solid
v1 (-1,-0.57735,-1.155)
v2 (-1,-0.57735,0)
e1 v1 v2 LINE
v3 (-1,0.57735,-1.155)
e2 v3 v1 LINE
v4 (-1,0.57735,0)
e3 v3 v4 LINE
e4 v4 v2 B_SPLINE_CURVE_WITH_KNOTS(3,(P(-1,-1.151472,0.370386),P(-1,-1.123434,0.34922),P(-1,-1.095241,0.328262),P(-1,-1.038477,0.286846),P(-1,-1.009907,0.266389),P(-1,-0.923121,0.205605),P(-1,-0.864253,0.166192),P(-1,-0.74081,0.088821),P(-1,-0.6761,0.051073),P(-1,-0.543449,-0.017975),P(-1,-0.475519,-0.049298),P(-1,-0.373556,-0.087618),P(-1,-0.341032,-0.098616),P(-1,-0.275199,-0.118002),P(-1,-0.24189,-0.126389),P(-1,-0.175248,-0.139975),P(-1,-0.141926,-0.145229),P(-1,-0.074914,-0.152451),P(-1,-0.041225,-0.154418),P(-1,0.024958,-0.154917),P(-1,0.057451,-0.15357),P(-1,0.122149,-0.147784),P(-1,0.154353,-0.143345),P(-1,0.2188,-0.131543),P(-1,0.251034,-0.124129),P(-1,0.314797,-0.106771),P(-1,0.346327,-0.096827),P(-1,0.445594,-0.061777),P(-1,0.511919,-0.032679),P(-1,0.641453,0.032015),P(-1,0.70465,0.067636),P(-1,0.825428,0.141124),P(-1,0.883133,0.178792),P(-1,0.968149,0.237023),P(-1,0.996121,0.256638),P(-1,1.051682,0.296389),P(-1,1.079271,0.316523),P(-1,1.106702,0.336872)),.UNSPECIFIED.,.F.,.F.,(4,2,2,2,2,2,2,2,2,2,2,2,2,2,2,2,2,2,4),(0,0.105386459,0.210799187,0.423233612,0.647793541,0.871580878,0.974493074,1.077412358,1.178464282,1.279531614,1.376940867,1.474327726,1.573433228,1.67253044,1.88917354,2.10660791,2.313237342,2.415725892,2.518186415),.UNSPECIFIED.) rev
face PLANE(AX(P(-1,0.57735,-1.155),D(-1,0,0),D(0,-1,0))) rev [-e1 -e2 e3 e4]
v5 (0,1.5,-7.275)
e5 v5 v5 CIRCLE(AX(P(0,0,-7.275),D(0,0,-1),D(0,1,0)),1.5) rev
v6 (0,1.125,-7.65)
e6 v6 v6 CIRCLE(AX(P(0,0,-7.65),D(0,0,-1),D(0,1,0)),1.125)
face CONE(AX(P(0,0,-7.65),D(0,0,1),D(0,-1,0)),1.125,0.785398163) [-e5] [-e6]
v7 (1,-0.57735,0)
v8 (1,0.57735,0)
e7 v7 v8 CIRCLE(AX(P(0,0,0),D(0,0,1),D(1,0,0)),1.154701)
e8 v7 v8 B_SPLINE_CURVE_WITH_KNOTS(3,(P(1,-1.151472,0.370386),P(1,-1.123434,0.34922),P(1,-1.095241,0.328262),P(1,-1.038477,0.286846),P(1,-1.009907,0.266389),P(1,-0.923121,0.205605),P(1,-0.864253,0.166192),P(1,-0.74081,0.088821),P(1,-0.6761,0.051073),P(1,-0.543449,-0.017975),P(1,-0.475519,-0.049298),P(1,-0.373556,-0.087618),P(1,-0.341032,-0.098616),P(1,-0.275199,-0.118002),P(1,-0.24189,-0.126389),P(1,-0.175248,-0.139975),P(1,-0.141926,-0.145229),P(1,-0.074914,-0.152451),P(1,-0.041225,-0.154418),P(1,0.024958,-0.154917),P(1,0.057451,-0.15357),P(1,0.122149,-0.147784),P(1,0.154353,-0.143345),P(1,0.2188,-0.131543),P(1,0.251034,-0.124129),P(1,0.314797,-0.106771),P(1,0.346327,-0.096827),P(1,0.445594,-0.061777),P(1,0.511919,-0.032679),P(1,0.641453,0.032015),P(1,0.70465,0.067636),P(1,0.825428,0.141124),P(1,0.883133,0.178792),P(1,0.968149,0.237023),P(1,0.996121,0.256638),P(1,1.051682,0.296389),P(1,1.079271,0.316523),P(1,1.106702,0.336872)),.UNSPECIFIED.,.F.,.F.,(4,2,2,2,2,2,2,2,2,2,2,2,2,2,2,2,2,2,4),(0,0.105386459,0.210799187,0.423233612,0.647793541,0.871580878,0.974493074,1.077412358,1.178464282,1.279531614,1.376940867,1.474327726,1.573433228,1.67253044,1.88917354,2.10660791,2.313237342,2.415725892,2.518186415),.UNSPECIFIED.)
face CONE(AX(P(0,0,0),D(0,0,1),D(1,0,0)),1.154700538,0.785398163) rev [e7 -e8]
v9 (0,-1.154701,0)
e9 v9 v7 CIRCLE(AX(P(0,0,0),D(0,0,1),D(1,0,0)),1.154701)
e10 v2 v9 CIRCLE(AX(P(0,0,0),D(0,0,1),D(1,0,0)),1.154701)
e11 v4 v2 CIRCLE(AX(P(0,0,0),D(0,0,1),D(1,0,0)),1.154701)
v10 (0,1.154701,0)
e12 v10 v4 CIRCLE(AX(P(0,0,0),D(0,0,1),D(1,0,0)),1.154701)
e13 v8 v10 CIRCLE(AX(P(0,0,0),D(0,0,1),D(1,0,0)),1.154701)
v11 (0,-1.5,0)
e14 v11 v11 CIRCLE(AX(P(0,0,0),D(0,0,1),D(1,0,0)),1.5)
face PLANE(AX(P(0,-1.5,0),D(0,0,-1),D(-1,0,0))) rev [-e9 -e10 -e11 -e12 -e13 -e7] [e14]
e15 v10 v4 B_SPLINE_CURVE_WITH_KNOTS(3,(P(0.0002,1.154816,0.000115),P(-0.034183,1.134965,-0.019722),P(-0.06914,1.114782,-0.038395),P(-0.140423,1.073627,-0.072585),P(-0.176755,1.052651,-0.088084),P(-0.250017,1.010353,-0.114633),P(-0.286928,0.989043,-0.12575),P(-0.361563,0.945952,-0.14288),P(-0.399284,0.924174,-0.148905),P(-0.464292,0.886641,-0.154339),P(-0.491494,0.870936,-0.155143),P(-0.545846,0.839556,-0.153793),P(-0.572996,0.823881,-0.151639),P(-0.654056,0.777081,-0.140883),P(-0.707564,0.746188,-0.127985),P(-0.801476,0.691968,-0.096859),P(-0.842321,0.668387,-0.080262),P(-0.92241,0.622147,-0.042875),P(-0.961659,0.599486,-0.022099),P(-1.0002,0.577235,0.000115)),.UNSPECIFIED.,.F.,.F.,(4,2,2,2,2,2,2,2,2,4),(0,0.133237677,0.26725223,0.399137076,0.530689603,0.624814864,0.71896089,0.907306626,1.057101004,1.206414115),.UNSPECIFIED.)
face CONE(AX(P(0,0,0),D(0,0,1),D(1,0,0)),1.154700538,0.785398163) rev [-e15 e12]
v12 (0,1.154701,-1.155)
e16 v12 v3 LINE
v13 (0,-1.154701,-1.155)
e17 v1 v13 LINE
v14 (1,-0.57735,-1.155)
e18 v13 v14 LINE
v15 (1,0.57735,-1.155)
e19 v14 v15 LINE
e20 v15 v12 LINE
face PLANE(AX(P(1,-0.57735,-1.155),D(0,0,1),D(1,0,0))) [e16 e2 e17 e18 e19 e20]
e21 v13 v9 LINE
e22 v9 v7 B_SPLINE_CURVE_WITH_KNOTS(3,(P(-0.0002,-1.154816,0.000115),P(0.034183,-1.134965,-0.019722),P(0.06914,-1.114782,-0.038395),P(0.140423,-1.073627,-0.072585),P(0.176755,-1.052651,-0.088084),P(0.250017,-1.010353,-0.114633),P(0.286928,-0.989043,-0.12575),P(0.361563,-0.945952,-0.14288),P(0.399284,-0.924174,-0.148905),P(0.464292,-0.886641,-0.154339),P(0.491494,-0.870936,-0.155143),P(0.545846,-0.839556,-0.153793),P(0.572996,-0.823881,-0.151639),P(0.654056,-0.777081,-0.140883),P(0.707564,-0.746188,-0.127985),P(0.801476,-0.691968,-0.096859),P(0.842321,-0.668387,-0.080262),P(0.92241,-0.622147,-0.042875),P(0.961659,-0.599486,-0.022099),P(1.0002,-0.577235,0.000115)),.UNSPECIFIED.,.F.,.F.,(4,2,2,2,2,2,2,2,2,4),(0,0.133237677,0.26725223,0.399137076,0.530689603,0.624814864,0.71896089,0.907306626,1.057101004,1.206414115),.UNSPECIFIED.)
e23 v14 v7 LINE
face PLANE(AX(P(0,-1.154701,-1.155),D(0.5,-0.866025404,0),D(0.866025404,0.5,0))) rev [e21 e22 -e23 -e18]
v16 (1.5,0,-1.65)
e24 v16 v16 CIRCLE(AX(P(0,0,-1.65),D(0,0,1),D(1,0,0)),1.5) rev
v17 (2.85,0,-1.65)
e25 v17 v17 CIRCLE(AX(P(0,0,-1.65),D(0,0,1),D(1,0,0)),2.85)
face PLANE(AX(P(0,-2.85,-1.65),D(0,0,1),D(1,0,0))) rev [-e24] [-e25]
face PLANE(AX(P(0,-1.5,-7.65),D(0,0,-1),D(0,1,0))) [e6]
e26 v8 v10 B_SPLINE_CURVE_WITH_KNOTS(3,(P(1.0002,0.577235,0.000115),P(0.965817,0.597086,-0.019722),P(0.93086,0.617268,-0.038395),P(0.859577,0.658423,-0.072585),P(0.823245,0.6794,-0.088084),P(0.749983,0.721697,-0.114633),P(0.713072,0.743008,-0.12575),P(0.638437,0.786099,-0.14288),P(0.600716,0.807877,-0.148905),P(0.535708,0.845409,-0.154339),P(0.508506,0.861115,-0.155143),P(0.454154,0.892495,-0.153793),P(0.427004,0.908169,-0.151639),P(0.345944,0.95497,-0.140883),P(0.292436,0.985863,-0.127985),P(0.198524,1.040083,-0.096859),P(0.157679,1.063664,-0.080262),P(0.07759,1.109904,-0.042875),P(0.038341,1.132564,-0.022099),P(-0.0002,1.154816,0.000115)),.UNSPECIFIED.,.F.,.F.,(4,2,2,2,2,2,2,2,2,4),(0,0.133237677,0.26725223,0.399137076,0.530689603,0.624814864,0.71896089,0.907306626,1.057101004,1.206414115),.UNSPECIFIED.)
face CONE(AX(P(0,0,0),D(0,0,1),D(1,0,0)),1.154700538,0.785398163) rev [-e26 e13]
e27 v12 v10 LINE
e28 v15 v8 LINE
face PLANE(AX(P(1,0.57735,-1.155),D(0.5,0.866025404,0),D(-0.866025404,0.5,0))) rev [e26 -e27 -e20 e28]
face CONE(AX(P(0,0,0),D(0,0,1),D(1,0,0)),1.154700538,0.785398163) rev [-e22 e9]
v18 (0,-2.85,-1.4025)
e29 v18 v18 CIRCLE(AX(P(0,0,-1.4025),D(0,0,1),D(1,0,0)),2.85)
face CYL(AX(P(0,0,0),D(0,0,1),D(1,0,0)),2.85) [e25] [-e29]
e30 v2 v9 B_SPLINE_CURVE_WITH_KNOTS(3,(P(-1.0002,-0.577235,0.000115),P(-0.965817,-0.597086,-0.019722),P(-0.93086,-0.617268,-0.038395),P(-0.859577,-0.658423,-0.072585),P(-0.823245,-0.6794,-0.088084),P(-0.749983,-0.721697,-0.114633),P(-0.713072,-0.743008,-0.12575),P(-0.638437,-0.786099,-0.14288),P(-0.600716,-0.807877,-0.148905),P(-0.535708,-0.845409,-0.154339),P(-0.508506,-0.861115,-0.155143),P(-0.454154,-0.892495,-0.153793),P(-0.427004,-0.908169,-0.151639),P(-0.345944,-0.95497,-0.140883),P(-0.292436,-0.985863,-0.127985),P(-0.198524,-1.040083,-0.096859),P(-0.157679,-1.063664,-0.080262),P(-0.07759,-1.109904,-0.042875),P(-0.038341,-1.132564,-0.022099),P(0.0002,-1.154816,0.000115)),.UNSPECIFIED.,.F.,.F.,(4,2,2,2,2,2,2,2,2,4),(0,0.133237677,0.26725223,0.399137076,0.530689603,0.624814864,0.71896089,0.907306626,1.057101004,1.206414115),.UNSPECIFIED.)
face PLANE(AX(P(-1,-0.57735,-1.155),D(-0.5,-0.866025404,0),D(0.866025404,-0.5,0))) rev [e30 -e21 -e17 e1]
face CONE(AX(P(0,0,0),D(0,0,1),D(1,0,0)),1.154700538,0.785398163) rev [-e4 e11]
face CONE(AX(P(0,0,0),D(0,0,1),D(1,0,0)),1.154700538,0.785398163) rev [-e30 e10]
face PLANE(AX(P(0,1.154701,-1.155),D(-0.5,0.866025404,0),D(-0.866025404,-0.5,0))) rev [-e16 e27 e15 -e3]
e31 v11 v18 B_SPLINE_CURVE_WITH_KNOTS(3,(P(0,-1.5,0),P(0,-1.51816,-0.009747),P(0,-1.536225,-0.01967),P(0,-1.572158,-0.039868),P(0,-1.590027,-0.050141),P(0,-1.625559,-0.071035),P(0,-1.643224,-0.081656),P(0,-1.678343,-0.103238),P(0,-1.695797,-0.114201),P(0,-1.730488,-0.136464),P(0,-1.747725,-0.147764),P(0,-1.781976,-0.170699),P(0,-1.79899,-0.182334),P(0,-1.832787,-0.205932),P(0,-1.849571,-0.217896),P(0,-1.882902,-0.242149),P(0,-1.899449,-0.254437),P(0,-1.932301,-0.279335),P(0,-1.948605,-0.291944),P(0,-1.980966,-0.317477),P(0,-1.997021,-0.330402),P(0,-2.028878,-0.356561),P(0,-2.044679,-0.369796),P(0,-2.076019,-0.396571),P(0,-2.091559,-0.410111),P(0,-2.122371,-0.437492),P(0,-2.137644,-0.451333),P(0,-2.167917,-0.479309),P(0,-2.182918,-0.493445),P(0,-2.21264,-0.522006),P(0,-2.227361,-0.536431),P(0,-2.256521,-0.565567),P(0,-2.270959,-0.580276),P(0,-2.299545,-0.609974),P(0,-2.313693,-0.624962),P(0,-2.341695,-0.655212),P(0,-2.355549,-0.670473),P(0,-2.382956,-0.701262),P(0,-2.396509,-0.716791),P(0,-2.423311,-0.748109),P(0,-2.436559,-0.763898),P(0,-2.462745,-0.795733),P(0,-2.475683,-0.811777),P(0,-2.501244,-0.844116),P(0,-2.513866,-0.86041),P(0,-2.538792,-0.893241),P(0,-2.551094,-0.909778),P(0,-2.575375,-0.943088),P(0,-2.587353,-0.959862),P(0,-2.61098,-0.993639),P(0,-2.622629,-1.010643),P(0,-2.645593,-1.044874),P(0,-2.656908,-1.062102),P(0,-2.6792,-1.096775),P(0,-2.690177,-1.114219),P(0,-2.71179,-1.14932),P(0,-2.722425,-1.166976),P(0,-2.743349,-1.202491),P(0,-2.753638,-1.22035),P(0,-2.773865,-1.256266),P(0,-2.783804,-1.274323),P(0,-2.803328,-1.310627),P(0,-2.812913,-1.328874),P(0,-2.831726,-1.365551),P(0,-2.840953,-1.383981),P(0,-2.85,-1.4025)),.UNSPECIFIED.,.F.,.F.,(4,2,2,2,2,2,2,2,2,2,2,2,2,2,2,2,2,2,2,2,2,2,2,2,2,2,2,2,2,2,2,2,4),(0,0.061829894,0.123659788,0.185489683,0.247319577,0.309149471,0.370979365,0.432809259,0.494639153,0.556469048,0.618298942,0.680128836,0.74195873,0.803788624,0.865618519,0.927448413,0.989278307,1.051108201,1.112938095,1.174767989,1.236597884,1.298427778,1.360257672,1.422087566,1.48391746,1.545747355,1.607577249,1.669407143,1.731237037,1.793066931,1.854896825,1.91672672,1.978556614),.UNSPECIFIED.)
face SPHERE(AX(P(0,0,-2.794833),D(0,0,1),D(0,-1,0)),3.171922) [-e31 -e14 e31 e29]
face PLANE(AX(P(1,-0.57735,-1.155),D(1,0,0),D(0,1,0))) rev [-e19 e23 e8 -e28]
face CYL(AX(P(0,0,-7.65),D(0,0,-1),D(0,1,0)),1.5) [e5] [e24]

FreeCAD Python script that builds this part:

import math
import FreeCAD as App
import Part
import Sketcher

V = App.Vector
Q = App.Units.Quantity


def edges_at(feature, points):
    """Names of the edges that pass closest to the given points."""
    edges = feature.Shape.Edges
    near = lambda p: min(range(len(edges)), key=lambda i: edges[i].distToShape(Part.Vertex(*p))[0])
    return sorted({f"Edge{near(p) + 1}" for p in points})

doc = App.newDocument("Part")
body = doc.addObject("PartDesign::Body", "Body")

sketch1 = body.newObject("Sketcher::SketchObject", "Sketch")
sketch1.AttachmentSupport = (doc.getObject("YZ_Plane"), [""])
sketch1.MapMode = "FlatFace"
sketch1.addGeometry([
    Part.LineSegment(V(1.5, -1.6, 0), V(0, -1.6, 0)),
    Part.LineSegment(V(0, -1.6, 0), V(0, -7.7, 0)),
    Part.LineSegment(V(0, -7.7, 0), V(1.5, -7.7, 0)),
    Part.LineSegment(V(1.5, -7.7, 0), V(1.5, -1.6, 0)),
], False)
sketch1.addConstraint([
    Sketcher.Constraint("Coincident", 0, 2, 1, 1),
    Sketcher.Constraint("Coincident", 1, 2, 2, 1),
    Sketcher.Constraint("Coincident", 2, 2, 3, 1),
    Sketcher.Constraint("Coincident", 3, 2, 0, 1),
    Sketcher.Constraint("Horizontal", 0),
    Sketcher.Constraint("Vertical", 1),
    Sketcher.Constraint("Horizontal", 2),
    Sketcher.Constraint("Vertical", 3),
    Sketcher.Constraint("PointOnObject", 0, 2, -2),
    Sketcher.Constraint("DistanceY", 1, 2, 1, 1, 6.0),
    Sketcher.Constraint("DistanceX", 0, 2, 0, 1, 1.5),
    Sketcher.Constraint("DistanceY", 0, 2, -1, 1, 1.65),
])
revolution = body.newObject("PartDesign::Revolution", "Revolution")
revolution.Profile = sketch1
revolution.ReferenceAxis = (sketch1, ["V_Axis"])
revolution.Angle = 360
doc.recompute()

chamfer = body.newObject("PartDesign::Chamfer", "Chamfer")
chamfer.Base = (revolution, edges_at(revolution, [(0, -1.5, -7.65)]))
chamfer.Size = 0.375

sketch2 = body.newObject("Sketcher::SketchObject", "Sketch001")
sketch2.AttachmentSupport = (doc.getObject("YZ_Plane"), [""])
sketch2.MapMode = "FlatFace"
sketch2.addGeometry([
    Part.LineSegment(V(2.85, -1.65, 0), V(2.85, -1.4, 0)),
    Part.ArcOfCircle(Part.Circle(V(0, -2.79, 0), V(0, 0, 1), 3.17), math.radians(26), math.radians(62)),
    Part.LineSegment(V(1.5, 0, 0), V(0, 0, 0)),
    Part.LineSegment(V(0, 0, 0), V(0, -1.65, 0)),
    Part.LineSegment(V(0, -1.65, 0), V(2.85, -1.65, 0)),
], False)
sketch2.addConstraint([
    Sketcher.Constraint("Coincident", 0, 2, 1, 1),
    Sketcher.Constraint("Coincident", 1, 2, 2, 1),
    Sketcher.Constraint("Coincident", 2, 2, 3, 1),
    Sketcher.Constraint("Coincident", 3, 2, 4, 1),
    Sketcher.Constraint("Coincident", 4, 2, 0, 1),
    Sketcher.Constraint("Vertical", 0),
    Sketcher.Constraint("Horizontal", 2),
    Sketcher.Constraint("Vertical", 3),
    Sketcher.Constraint("Horizontal", 4),
    Sketcher.Constraint("Coincident", 2, 2, -1, 1),
    Sketcher.Constraint("PointOnObject", 1, 3, -2),
    Sketcher.Constraint("DistanceX", 2, 2, 2, 1, 1.5),
    Sketcher.Constraint("DistanceX", 4, 1, 4, 2, 2.85),
    Sketcher.Constraint("DistanceY", 3, 2, 3, 1, 1.65),
    Sketcher.Constraint("DistanceY", 0, 1, 0, 2, 0.2475),
])
revolution2 = body.newObject("PartDesign::Revolution", "Revolution001")
revolution2.Profile = sketch2
revolution2.ReferenceAxis = (sketch2, ["V_Axis"])
revolution2.Angle = 360

sketch3 = body.newObject("Sketcher::SketchObject", "Sketch002")
sketch3.AttachmentSupport = (doc.getObject("XY_Plane"), [""])
sketch3.MapMode = "FlatFace"
sketch3.addGeometry([
    Part.LineSegment(V(1, -0.6, 0), V(1, 0.6, 0)),
    Part.LineSegment(V(1, 0.6, 0), V(0, 1.2, 0)),
    Part.LineSegment(V(0, 1.2, 0), V(-1, 0.6, 0)),
    Part.LineSegment(V(-1, 0.6, 0), V(-1, -0.6, 0)),
    Part.LineSegment(V(-1, -0.6, 0), V(0, -1.2, 0)),
    Part.LineSegment(V(0, -1.2, 0), V(1, -0.6, 0)),
], False)
sketch3.addConstraint([
    Sketcher.Constraint("Coincident", 0, 2, 1, 1),
    Sketcher.Constraint("Coincident", 1, 2, 2, 1),
    Sketcher.Constraint("Coincident", 2, 2, 3, 1),
    Sketcher.Constraint("Coincident", 3, 2, 4, 1),
    Sketcher.Constraint("Coincident", 4, 2, 5, 1),
    Sketcher.Constraint("Coincident", 5, 2, 0, 1),
    Sketcher.Constraint("Vertical", 0),
    Sketcher.Constraint("Vertical", 3),
    Sketcher.Constraint("Symmetric", 0, 2, 3, 2, -1, 1),
    Sketcher.Constraint("Symmetric", 1, 2, 4, 2, -1, 1),
    Sketcher.Constraint("PointOnObject", 1, 2, -2),
    Sketcher.Constraint("Parallel", 2, 5),
    Sketcher.Constraint("Horizontal", 0, 2, 2, 2),
    Sketcher.Constraint("Angle", 1, Q("150 deg")),
    Sketcher.Constraint("DistanceX", -1, 1, 0, 2, 1.0),
    Sketcher.Constraint("DistanceY", 0, 1, 0, 2, 1.154701),
])
pocket1 = body.newObject("PartDesign::Pocket", "Pocket")
pocket1.Profile = sketch3
pocket1.Length = 1.155

sketch4 = body.newObject("Sketcher::SketchObject", "Sketch003")
sketch4.AttachmentSupport = (doc.getObject("YZ_Plane"), [""])
sketch4.MapMode = "FlatFace"
sketch4.addGeometry([
    Part.LineSegment(V(0, 0, 0), V(-1.2, 0, 0)),
    Part.LineSegment(V(-1.2, 0, 0), V(0, -1.2, 0)),
    Part.LineSegment(V(0, -1.2, 0), V(0, 0, 0)),
], False)
sketch4.addConstraint([
    Sketcher.Constraint("Coincident", 0, 2, 1, 1),
    Sketcher.Constraint("Coincident", 1, 2, 2, 1),
    Sketcher.Constraint("Coincident", 2, 2, 0, 1),
    Sketcher.Constraint("Horizontal", 0),
    Sketcher.Constraint("Vertical", 2),
    Sketcher.Constraint("Coincident", 2, 2, -1, 1),
    Sketcher.Constraint("Equal", 0, 2),
    Sketcher.Constraint("DistanceX", 0, 2, 0, 1, 1.154701),
])
groove = body.newObject("PartDesign::Groove", "Groove")
groove.Profile = sketch4
groove.ReferenceAxis = (sketch4, ["V_Axis"])
groove.Angle = 360

doc.recompute()
